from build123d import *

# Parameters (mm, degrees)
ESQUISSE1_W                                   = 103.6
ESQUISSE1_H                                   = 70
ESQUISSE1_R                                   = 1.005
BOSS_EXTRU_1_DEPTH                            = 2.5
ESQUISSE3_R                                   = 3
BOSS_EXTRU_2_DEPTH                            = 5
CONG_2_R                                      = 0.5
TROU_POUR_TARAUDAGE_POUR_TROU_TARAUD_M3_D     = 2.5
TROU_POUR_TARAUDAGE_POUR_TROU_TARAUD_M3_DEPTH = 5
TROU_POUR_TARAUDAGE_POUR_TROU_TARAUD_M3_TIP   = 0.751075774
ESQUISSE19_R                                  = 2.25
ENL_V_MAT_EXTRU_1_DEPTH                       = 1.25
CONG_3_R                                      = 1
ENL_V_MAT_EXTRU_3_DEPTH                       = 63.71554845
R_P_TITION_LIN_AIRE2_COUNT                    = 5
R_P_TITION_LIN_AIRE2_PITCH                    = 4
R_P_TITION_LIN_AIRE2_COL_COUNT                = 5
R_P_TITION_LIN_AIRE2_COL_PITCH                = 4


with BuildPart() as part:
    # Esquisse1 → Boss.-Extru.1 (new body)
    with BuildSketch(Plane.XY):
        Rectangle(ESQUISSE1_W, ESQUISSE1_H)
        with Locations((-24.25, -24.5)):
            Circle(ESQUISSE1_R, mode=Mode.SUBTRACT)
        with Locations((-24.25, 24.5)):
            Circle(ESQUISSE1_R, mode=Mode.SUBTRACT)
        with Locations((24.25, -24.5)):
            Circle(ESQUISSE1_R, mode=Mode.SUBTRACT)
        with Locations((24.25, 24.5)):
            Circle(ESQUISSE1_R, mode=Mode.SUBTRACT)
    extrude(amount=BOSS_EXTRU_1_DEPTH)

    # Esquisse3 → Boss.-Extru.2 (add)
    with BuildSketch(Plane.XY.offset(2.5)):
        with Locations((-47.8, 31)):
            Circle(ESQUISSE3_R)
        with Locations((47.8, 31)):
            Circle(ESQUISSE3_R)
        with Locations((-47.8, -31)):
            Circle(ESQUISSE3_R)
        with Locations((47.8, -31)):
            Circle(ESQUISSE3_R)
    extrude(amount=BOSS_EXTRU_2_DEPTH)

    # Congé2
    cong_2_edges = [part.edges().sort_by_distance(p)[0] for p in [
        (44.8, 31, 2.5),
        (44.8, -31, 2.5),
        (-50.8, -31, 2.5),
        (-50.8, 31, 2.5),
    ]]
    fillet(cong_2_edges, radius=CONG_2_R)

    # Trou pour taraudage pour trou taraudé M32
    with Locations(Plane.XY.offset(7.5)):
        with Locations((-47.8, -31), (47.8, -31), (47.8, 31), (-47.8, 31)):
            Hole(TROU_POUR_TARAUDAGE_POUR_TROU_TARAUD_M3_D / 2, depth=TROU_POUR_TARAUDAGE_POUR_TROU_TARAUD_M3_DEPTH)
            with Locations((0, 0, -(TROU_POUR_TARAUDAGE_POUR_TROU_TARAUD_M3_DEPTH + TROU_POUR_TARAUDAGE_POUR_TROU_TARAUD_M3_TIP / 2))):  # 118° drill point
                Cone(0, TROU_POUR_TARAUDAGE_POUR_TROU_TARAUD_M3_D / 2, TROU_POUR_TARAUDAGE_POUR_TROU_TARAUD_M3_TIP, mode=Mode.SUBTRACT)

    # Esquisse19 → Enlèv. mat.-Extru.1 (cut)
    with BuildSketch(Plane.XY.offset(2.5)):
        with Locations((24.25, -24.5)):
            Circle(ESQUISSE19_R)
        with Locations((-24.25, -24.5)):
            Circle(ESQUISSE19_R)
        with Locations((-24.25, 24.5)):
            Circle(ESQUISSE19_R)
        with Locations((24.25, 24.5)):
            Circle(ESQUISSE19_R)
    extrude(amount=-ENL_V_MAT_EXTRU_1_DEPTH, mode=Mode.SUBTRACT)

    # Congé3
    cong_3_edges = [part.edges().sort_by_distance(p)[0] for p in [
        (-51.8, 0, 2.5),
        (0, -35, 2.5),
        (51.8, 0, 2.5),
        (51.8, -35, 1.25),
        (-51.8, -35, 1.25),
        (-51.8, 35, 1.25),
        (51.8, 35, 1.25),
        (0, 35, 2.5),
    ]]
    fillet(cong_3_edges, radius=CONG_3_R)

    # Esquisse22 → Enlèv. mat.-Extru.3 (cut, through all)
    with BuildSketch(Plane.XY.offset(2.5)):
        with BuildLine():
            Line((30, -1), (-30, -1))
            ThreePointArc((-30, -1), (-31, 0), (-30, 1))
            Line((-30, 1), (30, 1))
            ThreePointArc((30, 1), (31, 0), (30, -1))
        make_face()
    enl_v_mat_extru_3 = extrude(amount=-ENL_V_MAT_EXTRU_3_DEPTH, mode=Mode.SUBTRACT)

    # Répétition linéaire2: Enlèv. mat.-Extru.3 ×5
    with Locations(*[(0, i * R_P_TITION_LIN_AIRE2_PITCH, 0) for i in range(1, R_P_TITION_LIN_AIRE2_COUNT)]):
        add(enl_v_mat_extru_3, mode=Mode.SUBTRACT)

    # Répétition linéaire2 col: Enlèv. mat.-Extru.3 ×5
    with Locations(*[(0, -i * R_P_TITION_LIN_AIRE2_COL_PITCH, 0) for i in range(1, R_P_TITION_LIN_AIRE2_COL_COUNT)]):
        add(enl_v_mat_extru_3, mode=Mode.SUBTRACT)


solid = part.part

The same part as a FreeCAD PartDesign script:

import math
import FreeCAD as App
import Part
import Sketcher
Q = App.Units.Quantity


def edges_at(feature, points):
    """Names of the edges that pass closest to the given points."""
    edges = feature.Shape.Edges
    near = lambda p: min(range(len(edges)), key=lambda i: edges[i].distToShape(Part.Vertex(*p))[0])
    return sorted({f"Edge{near(p) + 1}" for p in points})

doc = App.newDocument("Part")
body = doc.addObject("PartDesign::Body", "Body")

sketch1 = body.newObject("Sketcher::SketchObject", "Sketch")
sketch1.AttachmentSupport = (doc.getObject("XY_Plane"), [""])
sketch1.MapMode = "FlatFace"
sketch1.addGeometry(Part.LineSegment(App.Vector(-51.8, 35, 0), App.Vector(-51.8, -35, 0)), False)
sketch1.addGeometry(Part.LineSegment(App.Vector(-51.8, -35, 0), App.Vector(51.8, -35, 0)), False)
sketch1.addGeometry(Part.LineSegment(App.Vector(51.8, -35, 0), App.Vector(51.8, 35, 0)), False)
sketch1.addGeometry(Part.LineSegment(App.Vector(51.8, 35, 0), App.Vector(-51.8, 35, 0)), False)
sketch1.addGeometry(Part.Circle(App.Vector(-24.2, -24.5, 0), App.Vector(0, 0, 1), 1), False)
sketch1.addGeometry(Part.Circle(App.Vector(24.2, -24.5, 0), App.Vector(0, 0, 1), 1), False)
sketch1.addGeometry(Part.Circle(App.Vector(-24.2, 24.5, 0), App.Vector(0, 0, 1), 1), False)
sketch1.addGeometry(Part.Circle(App.Vector(24.2, 24.5, 0), App.Vector(0, 0, 1), 1), False)
sketch1.addConstraint(Sketcher.Constraint("Coincident", 0, 2, 1, 1))
sketch1.addConstraint(Sketcher.Constraint("Coincident", 1, 2, 2, 1))
sketch1.addConstraint(Sketcher.Constraint("Coincident", 2, 2, 3, 1))
sketch1.addConstraint(Sketcher.Constraint("Coincident", 3, 2, 0, 1))
sketch1.addConstraint(Sketcher.Constraint("Vertical", 0))
sketch1.addConstraint(Sketcher.Constraint("Horizontal", 1))
sketch1.addConstraint(Sketcher.Constraint("Vertical", 2))
sketch1.addConstraint(Sketcher.Constraint("Horizontal", 3))
sketch1.addConstraint(Sketcher.Constraint("Equal", 4, 5))
sketch1.addConstraint(Sketcher.Constraint("Equal", 5, 6))
sketch1.addConstraint(Sketcher.Constraint("Equal", 6, 7))
sketch1.addConstraint(Sketcher.Constraint("Symmetric", 5, 3, 6, 3, -1, 1))
sketch1.addConstraint(Sketcher.Constraint("Symmetric", 4, 3, 7, 3, -1, 1))
sketch1.addConstraint(Sketcher.Constraint("Symmetric", 0, 2, 2, 2, -1, 1))
sketch1.addConstraint(Sketcher.Constraint("Symmetric", 4, 3, 5, 3, -2))
sketch1.addConstraint(Sketcher.Constraint("Diameter", 4, Q("2.01 mm")))
sketch1.addConstraint(Sketcher.Constraint("DistanceY", 0, 2, 0, 1, Q("70 mm")))
sketch1.addConstraint(Sketcher.Constraint("DistanceX", 1, 1, 1, 2, Q("103.6 mm")))
sketch1.addConstraint(Sketcher.Constraint("DistanceY", 4, 3, 6, 3, Q("49 mm")))
sketch1.addConstraint(Sketcher.Constraint("DistanceX", 4, 3, 5, 3, Q("48.5 mm")))
pad1 = body.newObject("PartDesign::Pad", "Pad")
pad1.Profile = sketch1
pad1.Length = 2.5

sketch2 = body.newObject("Sketcher::SketchObject", "Sketch001")
sketch2.AttachmentSupport = (doc.getObject("XY_Plane"), [""])
sketch2.MapMode = "FlatFace"
sketch2.AttachmentOffset = App.Placement(App.Vector(0, 0, 2.5), App.Rotation())
sketch2.addGeometry(Part.Circle(App.Vector(-47.8, 31, 0), App.Vector(0, 0, 1), 3), False)
sketch2.addGeometry(Part.Circle(App.Vector(47.8, 31, 0), App.Vector(0, 0, 1), 3), False)
sketch2.addGeometry(Part.Circle(App.Vector(-47.8, -31, 0), App.Vector(0, 0, 1), 3), False)
sketch2.addGeometry(Part.Circle(App.Vector(47.8, -31, 0), App.Vector(0, 0, 1), 3), False)
sketch2.addConstraint(Sketcher.Constraint("Equal", 0, 1))
sketch2.addConstraint(Sketcher.Constraint("Equal", 1, 2))
sketch2.addConstraint(Sketcher.Constraint("Equal", 2, 3))
sketch2.addConstraint(Sketcher.Constraint("Symmetric", 1, 3, 2, 3, -1, 1))
sketch2.addConstraint(Sketcher.Constraint("Symmetric", 0, 3, 3, 3, -1, 1))
sketch2.addConstraint(Sketcher.Constraint("Symmetric", 0, 3, 1, 3, -2))
sketch2.addConstraint(Sketcher.Constraint("Diameter", 0, Q("6 mm")))
sketch2.addConstraint(Sketcher.Constraint("DistanceY", -1, 1, 0, 3, Q("31 mm")))
sketch2.addConstraint(Sketcher.Constraint("DistanceX", 0, 3, -1, 1, Q("47.8 mm")))
pad2 = body.newObject("PartDesign::Pad", "Pad001")
pad2.Profile = sketch2
pad2.Length = 5
doc.recompute()

fillet = body.newObject("PartDesign::Fillet", "Fillet")
fillet.Base = (pad2, edges_at(pad2, [
    (44.8, 31, 2.5),
    (44.8, -31, 2.5),
    (-50.8, -31, 2.5),
    (-50.8, 31, 2.5),
]))
fillet.Radius = 0.5

sketch3 = body.newObject("Sketcher::SketchObject", "Sketch002")
sketch3.AttachmentSupport = (doc.getObject("XY_Plane"), [""])
sketch3.MapMode = "FlatFace"
sketch3.AttachmentOffset = App.Placement(App.Vector(0, 0, 7.5), App.Rotation())
sketch3.addGeometry(Part.Circle(App.Vector(-47.8, -31, 0), App.Vector(0, 0, 1), 1.2), False)
sketch3.addGeometry(Part.Circle(App.Vector(47.8, -31, 0), App.Vector(0, 0, 1), 1.2), False)
sketch3.addGeometry(Part.Circle(App.Vector(47.8, 31, 0), App.Vector(0, 0, 1), 1.2), False)
sketch3.addGeometry(Part.Circle(App.Vector(-47.8, 31, 0), App.Vector(0, 0, 1), 1.2), False)
sketch3.addConstraint(Sketcher.Constraint("Equal", 0, 1))
sketch3.addConstraint(Sketcher.Constraint("Equal", 1, 2))
sketch3.addConstraint(Sketcher.Constraint("Equal", 2, 3))
sketch3.addConstraint(Sketcher.Constraint("Symmetric", 0, 3, 2, 3, -1, 1))
sketch3.addConstraint(Sketcher.Constraint("Symmetric", 1, 3, 3, 3, -1, 1))
sketch3.addConstraint(Sketcher.Constraint("Symmetric", 0, 3, 1, 3, -2))
sketch3.addConstraint(Sketcher.Constraint("Diameter", 0, Q("2.5 mm")))
sketch3.addConstraint(Sketcher.Constraint("DistanceY", 0, 3, -1, 1, Q("31 mm")))
sketch3.addConstraint(Sketcher.Constraint("DistanceX", 0, 3, -1, 1, Q("47.8 mm")))
doc.recompute()
hole = body.newObject("PartDesign::Hole", "Hole")
hole.Profile = sketch3
hole.ThreadType = "None"
hole.Diameter = 2.5
hole.DepthType = "Dimension"
hole.Depth = 5
hole.DrillPoint = "Angled"
hole.DrillPointAngle = 118

sketch4 = body.newObject("Sketcher::SketchObject", "Sketch003")
sketch4.AttachmentSupport = (doc.getObject("XY_Plane"), [""])
sketch4.MapMode = "FlatFace"
sketch4.AttachmentOffset = App.Placement(App.Vector(0, 0, 2.5), App.Rotation())
sketch4.addGeometry(Part.Circle(App.Vector(24.2, -24.5, 0), App.Vector(0, 0, 1), 2.2), False)
sketch4.addGeometry(Part.Circle(App.Vector(-24.2, -24.5, 0), App.Vector(0, 0, 1), 2.2), False)
sketch4.addGeometry(Part.Circle(App.Vector(-24.2, 24.5, 0), App.Vector(0, 0, 1), 2.2), False)
sketch4.addGeometry(Part.Circle(App.Vector(24.2, 24.5, 0), App.Vector(0, 0, 1), 2.2), False)
sketch4.addConstraint(Sketcher.Constraint("Equal", 0, 1))
sketch4.addConstraint(Sketcher.Constraint("Equal", 1, 2))
sketch4.addConstraint(Sketcher.Constraint("Equal", 2, 3))
sketch4.addConstraint(Sketcher.Constraint("Symmetric", 0, 3, 2, 3, -1, 1))
sketch4.addConstraint(Sketcher.Constraint("Symmetric", 1, 3, 3, 3, -1, 1))
sketch4.addConstraint(Sketcher.Constraint("Symmetric", 0, 3, 1, 3, -2))
sketch4.addConstraint(Sketcher.Constraint("Diameter", 0, Q("4.5 mm")))
sketch4.addConstraint(Sketcher.Constraint("DistanceY", 1, 3, 2, 3, Q("49 mm")))
sketch4.addConstraint(Sketcher.Constraint("DistanceX", 1, 3, 0, 3, Q("48.5 mm")))
pocket1 = body.newObject("PartDesign::Pocket", "Pocket")
pocket1.Profile = sketch4
pocket1.Length = 1.25
doc.recompute()

fillet2 = body.newObject("PartDesign::Fillet", "Fillet001")
fillet2.Base = (pocket1, edges_at(pocket1, [
    (-51.8, 0, 2.5),
    (0, -35, 2.5),
    (51.8, 0, 2.5),
    (51.8, -35, 1.25),
    (-51.8, -35, 1.25),
    (-51.8, 35, 1.25),
    (51.8, 35, 1.25),
    (0, 35, 2.5),
]))
fillet2.Radius = 1

sketch5 = body.newObject("Sketcher::SketchObject", "Sketch004")
sketch5.AttachmentSupport = (doc.getObject("XY_Plane"), [""])
sketch5.MapMode = "FlatFace"
sketch5.AttachmentOffset = App.Placement(App.Vector(0, 0, 2.5), App.Rotation())
sketch5.addGeometry(Part.LineSegment(App.Vector(-30, -1, 0), App.Vector(30, -1, 0)), False)
sketch5.addGeometry(Part.ArcOfCircle(Part.Circle(App.Vector(30, 0, 0), App.Vector(0, 0, 1), 1), math.radians(-90), math.radians(90)), False)
sketch5.addGeometry(Part.LineSegment(App.Vector(30, 1, 0), App.Vector(-30, 1, 0)), False)
sketch5.addGeometry(Part.ArcOfCircle(Part.Circle(App.Vector(-30, 0, 0), App.Vector(0, 0, 1), 1), math.radians(90), math.radians(270)), False)
sketch5.addConstraint(Sketcher.Constraint("Tangent", 0, 2, 1, 1))
sketch5.addConstraint(Sketcher.Constraint("Tangent", 1, 2, 2, 1))
sketch5.addConstraint(Sketcher.Constraint("Tangent", 2, 2, 3, 1))
sketch5.addConstraint(Sketcher.Constraint("Tangent", 3, 2, 0, 1))
sketch5.addConstraint(Sketcher.Constraint("Horizontal", 0))
sketch5.addConstraint(Sketcher.Constraint("Horizontal", 2))
sketch5.addConstraint(Sketcher.Constraint("Symmetric", 1, 3, 3, 3, -1, 1))
sketch5.addConstraint(Sketcher.Constraint("Radius", 1, Q("1 mm")))
sketch5.addConstraint(Sketcher.Constraint("DistanceX", 0, 1, 0, 2, Q("60 mm")))
pocket2 = body.newObject("PartDesign::Pocket", "Pocket001")
pocket2.Profile = sketch5
pocket2.Type = "ThroughAll"
doc.recompute()

linearpattern = body.newObject("PartDesign::LinearPattern", "LinearPattern")
linearpattern.Originals = [pocket2]
linearpattern.Direction = (doc.getObject("Y_Axis"), [""])
linearpattern.Mode = "offset"
linearpattern.Offset = 4
linearpattern.Occurrences = 5
body.Tip = linearpattern
doc.recompute()

linearpattern2 = body.newObject("PartDesign::LinearPattern", "LinearPattern001")
linearpattern2.Originals = [pocket2]
linearpattern2.Direction = (doc.getObject("Y_Axis"), [""])
linearpattern2.Mode = "offset"
linearpattern2.Offset = 4
linearpattern2.Occurrences = 5
linearpattern2.Reversed = True
body.Tip = linearpattern2

doc.recompute()
